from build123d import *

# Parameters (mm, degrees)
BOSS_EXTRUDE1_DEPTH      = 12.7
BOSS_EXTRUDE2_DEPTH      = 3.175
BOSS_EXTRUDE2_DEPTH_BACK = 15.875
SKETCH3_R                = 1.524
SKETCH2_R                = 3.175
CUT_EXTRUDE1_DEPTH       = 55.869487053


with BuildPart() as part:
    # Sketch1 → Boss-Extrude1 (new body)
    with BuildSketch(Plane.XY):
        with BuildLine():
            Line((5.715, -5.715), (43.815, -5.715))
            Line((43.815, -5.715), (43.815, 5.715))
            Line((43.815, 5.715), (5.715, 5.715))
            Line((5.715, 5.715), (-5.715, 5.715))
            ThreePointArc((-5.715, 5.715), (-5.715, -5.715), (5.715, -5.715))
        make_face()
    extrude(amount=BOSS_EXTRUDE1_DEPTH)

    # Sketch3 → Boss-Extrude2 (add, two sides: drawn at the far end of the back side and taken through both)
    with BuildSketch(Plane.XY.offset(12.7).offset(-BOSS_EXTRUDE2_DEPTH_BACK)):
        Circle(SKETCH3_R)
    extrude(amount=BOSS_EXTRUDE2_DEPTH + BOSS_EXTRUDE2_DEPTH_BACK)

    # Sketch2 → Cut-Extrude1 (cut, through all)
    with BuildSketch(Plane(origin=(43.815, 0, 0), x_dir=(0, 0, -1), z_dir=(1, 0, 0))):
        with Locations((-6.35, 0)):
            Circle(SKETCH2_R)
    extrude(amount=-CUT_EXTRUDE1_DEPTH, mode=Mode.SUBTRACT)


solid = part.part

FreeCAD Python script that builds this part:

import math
import FreeCAD as App
import Part
import Sketcher
Q = App.Units.Quantity

doc = App.newDocument("Part")
body = doc.addObject("PartDesign::Body", "Body")

sketch1 = body.newObject("Sketcher::SketchObject", "Sketch")
sketch1.AttachmentSupport = (doc.getObject("XY_Plane"), [""])
sketch1.MapMode = "FlatFace"
sketch1.addGeometry([
    Part.LineSegment(App.Vector(6, -6, 0), App.Vector(44, -6, 0)),
    Part.LineSegment(App.Vector(44, -6, 0), App.Vector(44, 6, 0)),
    Part.LineSegment(App.Vector(44, 6, 0), App.Vector(-6, 6, 0)),
    Part.ArcOfCircle(Part.Circle(App.Vector(0, 0, 0), App.Vector(0, 0, 1), 8), math.radians(135), math.radians(315)),
], False)
sketch1.addConstraint([
    Sketcher.Constraint("Coincident", 0, 2, 1, 1),
    Sketcher.Constraint("Coincident", 1, 2, 2, 1),
    Sketcher.Constraint("Coincident", 2, 2, 3, 1),
    Sketcher.Constraint("Coincident", 3, 2, 0, 1),
    Sketcher.Constraint("Horizontal", 0),
    Sketcher.Constraint("Vertical", 1),
    Sketcher.Constraint("Horizontal", 2),
    Sketcher.Constraint("Coincident", 3, 3, -1, 1),
    Sketcher.Constraint("DistanceX", 0, 1, 0, 2, Q("1.5 in")),
    Sketcher.Constraint("DistanceX", 2, 2, 2, 1, Q("1.95 in")),
    Sketcher.Constraint("DistanceY", 1, 1, 1, 2, Q("0.45 in")),
    Sketcher.Constraint("DistanceX", -1, 1, 0, 2, Q("1.725 in")),
])
pad1 = body.newObject("PartDesign::Pad", "Pad")
pad1.Profile = sketch1
pad1.Length = Q("0.5 in")

sketch2 = body.newObject("Sketcher::SketchObject", "Sketch001")
sketch2.AttachmentSupport = (doc.getObject("XY_Plane"), [""])
sketch2.MapMode = "FlatFace"
sketch2.AttachmentOffset = App.Placement(App.Vector(0, 0, 0.5 * 25.4), App.Rotation())
sketch2.addGeometry(Part.Circle(App.Vector(0, 0, 0), App.Vector(0, 0, 1), 1.5), False)
sketch2.addConstraint([
    Sketcher.Constraint("Coincident", 0, 3, -1, 1),
    Sketcher.Constraint("Diameter", 0, Q("0.12 in")),
])
pad2 = body.newObject("PartDesign::Pad", "Pad001")
pad2.Profile = sketch2
pad2.Type = "TwoLengths"
pad2.Length = Q("0.125 in")
pad2.Length2 = Q("0.625 in")

sketch3 = body.newObject("Sketcher::SketchObject", "Sketch002")
sketch3.AttachmentSupport = (doc.getObject("YZ_Plane"), [""])
sketch3.MapMode = "FlatFace"
sketch3.AttachmentOffset = App.Placement(App.Vector(0, 0, 1.725 * 25.4), App.Rotation())
sketch3.addGeometry(Part.Circle(App.Vector(0, 6.3, 0), App.Vector(0, 0, 1), 3.2), False)
sketch3.addConstraint([
    Sketcher.Constraint("PointOnObject", 0, 3, -2),
    Sketcher.Constraint("Diameter", 0, Q("0.25 in")),
    Sketcher.Constraint("DistanceY", -1, 1, 0, 3, Q("0.25 in")),
])
pocket1 = body.newObject("PartDesign::Pocket", "Pocket")
pocket1.Profile = sketch3
pocket1.Type = "ThroughAll"

doc.recompute()
